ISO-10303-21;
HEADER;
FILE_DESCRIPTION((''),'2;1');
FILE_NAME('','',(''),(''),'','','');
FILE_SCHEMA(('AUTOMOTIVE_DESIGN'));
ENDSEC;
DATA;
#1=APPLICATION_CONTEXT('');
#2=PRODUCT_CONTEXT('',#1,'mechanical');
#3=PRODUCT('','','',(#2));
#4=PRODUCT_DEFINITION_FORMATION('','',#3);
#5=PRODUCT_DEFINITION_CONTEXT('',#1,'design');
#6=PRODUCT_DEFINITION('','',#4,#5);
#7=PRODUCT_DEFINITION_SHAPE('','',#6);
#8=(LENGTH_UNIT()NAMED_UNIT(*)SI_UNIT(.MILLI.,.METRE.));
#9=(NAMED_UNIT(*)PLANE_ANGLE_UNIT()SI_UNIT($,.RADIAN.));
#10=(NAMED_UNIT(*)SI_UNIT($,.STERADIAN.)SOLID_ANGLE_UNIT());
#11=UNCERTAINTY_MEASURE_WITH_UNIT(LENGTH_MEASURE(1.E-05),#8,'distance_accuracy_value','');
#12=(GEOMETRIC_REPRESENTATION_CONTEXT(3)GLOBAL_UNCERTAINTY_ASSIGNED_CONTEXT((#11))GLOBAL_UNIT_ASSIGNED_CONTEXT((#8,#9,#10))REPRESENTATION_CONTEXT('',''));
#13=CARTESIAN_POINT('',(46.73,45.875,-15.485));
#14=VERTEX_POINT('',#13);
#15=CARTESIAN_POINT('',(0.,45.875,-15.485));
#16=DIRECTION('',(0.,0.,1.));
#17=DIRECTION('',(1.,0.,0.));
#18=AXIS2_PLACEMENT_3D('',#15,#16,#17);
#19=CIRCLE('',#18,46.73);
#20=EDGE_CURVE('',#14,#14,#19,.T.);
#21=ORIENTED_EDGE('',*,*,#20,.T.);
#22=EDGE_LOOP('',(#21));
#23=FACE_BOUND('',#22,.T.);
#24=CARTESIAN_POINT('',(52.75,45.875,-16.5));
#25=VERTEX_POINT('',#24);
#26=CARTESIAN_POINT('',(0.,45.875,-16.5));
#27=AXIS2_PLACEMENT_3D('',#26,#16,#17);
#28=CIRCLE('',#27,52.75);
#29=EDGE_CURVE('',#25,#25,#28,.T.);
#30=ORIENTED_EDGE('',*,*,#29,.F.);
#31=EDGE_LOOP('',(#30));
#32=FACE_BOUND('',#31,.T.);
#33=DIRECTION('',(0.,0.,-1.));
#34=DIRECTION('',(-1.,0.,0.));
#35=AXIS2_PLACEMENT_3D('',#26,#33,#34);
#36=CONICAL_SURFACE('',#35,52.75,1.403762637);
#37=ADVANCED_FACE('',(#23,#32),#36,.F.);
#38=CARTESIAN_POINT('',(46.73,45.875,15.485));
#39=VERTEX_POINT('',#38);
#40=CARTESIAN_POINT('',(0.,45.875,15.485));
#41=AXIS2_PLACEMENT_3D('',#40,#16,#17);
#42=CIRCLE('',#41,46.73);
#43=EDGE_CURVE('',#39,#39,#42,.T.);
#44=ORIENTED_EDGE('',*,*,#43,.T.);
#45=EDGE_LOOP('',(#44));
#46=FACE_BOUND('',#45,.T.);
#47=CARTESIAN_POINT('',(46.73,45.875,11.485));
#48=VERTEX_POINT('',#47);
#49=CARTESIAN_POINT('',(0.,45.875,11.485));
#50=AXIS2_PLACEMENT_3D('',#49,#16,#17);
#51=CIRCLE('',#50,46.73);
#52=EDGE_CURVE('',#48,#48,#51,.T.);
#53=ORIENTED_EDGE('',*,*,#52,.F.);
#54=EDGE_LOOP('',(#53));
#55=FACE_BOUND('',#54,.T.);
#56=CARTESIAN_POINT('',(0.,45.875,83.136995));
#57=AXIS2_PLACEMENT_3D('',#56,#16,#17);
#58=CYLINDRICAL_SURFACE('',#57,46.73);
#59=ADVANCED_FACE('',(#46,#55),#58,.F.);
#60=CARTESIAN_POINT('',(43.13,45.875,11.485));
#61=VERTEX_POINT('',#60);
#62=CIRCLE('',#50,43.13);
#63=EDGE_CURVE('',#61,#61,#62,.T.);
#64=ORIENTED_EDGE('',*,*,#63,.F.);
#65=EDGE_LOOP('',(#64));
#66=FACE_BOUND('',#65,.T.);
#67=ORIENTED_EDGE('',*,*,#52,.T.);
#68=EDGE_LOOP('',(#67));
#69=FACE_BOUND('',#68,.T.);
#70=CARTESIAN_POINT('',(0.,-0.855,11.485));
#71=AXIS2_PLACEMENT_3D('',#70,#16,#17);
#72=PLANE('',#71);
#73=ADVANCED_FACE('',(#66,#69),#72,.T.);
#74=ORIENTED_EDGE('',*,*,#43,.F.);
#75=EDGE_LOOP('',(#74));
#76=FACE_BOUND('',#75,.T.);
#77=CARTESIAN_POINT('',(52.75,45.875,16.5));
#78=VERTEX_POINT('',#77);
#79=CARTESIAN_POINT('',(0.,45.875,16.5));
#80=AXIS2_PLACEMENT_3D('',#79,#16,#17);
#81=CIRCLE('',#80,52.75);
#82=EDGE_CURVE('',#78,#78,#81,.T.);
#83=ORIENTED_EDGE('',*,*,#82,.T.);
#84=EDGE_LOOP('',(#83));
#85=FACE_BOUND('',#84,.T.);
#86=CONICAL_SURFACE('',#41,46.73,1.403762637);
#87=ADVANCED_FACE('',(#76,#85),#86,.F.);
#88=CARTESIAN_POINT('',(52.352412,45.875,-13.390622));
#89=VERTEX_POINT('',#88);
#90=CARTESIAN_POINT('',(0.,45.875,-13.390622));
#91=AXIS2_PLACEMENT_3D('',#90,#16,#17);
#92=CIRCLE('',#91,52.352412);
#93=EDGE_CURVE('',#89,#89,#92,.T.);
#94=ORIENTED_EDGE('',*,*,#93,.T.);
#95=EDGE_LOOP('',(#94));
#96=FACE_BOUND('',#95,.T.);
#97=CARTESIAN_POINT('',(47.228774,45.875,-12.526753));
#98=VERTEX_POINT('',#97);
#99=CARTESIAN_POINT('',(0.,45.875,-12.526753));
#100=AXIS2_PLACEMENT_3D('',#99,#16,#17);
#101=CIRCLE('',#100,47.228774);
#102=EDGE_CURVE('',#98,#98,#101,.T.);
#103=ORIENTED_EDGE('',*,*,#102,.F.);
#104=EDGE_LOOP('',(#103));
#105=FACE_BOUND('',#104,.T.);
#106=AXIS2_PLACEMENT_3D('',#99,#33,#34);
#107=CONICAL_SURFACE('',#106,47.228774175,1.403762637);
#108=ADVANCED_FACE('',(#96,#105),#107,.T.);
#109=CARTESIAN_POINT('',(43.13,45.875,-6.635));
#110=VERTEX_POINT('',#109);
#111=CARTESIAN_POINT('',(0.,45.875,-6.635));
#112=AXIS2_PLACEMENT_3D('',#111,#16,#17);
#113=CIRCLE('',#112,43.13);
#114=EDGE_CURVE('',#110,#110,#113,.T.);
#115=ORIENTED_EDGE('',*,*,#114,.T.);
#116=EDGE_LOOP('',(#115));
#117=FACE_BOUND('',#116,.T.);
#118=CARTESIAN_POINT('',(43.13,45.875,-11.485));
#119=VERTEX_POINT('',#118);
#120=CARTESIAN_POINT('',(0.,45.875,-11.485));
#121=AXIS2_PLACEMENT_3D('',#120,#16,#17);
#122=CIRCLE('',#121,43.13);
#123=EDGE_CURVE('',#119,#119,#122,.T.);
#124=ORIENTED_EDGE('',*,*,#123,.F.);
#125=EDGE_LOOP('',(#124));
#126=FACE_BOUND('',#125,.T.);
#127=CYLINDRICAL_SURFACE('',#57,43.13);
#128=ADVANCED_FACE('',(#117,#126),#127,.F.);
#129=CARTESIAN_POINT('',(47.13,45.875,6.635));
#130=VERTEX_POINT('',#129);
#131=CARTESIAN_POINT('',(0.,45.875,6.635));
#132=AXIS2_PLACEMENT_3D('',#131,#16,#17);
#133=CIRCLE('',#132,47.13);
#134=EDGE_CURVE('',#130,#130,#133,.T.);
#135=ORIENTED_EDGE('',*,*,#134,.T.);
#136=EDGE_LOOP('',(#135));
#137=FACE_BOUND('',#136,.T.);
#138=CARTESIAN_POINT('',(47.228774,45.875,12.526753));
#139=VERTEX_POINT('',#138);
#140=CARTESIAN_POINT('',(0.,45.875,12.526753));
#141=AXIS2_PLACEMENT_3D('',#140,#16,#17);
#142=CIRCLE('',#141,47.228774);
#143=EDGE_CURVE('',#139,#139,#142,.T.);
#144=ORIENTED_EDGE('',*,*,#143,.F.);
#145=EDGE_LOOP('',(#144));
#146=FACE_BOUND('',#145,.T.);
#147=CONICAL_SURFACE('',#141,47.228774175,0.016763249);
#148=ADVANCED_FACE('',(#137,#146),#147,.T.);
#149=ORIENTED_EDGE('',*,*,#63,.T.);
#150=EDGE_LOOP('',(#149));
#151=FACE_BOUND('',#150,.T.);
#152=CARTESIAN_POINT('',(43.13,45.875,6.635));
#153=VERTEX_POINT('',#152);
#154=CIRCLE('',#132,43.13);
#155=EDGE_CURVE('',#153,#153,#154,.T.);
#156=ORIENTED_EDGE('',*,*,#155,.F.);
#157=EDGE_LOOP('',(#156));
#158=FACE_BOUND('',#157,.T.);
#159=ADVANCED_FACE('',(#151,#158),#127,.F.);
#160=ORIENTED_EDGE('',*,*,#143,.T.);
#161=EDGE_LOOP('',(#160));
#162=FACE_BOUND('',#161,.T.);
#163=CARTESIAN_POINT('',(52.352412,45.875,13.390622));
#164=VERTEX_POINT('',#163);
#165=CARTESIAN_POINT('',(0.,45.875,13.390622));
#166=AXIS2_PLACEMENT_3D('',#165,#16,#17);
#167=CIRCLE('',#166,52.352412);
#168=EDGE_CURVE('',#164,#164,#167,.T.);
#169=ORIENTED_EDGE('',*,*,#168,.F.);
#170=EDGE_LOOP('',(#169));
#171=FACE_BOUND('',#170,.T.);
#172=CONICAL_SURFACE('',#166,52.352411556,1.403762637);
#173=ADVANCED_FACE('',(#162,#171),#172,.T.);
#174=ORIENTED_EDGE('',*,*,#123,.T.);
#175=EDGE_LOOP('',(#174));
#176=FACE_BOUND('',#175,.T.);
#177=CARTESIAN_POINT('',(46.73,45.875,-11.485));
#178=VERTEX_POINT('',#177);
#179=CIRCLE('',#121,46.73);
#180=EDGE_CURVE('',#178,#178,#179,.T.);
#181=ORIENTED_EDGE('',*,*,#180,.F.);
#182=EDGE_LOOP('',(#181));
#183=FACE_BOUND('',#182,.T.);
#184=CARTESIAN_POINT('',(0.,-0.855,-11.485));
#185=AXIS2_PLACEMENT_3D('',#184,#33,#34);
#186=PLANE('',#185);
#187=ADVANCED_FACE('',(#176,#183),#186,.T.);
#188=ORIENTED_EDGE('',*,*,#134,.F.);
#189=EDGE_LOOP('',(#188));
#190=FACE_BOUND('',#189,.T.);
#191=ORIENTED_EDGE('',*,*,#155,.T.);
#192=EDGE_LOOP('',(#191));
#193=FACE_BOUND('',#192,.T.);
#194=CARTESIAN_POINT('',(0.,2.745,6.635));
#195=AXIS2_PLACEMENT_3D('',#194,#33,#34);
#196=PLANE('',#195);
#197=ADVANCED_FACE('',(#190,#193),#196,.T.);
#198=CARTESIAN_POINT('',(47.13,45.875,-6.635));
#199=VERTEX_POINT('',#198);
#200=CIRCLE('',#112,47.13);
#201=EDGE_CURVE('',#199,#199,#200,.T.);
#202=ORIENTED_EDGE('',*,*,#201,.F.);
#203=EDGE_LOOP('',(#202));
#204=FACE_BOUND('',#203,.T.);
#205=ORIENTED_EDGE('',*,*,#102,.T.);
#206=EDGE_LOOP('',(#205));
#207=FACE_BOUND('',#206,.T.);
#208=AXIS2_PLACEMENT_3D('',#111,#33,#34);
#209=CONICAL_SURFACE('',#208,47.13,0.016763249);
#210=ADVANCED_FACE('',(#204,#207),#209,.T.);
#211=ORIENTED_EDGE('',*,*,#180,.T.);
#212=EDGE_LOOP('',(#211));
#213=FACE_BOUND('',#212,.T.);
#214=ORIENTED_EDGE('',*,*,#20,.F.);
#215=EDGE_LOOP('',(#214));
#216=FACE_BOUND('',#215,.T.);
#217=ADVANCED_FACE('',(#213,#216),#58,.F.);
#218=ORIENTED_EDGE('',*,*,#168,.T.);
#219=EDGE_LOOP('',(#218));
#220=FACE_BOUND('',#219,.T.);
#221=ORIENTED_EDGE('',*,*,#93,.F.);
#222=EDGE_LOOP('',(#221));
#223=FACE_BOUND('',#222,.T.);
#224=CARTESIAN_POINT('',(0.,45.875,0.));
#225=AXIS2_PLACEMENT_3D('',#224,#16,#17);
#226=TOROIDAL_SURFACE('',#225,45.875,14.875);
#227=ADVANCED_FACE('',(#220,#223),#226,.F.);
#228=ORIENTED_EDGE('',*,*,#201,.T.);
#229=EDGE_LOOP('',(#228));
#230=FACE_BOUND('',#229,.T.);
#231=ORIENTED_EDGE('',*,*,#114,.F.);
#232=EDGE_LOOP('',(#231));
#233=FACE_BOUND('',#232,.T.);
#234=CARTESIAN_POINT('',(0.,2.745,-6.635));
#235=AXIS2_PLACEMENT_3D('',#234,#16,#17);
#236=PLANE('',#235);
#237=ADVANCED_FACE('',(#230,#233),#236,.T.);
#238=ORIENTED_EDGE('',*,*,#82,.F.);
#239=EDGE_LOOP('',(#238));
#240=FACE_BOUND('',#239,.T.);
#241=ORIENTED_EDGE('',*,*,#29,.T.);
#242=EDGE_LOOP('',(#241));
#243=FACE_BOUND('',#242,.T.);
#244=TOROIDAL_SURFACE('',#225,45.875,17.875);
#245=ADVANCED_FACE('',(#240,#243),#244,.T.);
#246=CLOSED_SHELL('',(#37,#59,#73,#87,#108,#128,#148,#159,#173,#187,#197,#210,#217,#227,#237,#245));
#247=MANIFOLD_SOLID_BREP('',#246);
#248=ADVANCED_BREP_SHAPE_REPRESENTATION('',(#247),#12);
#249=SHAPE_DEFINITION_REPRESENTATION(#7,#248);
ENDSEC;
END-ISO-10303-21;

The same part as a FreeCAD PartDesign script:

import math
import FreeCAD as App
import Part
import Sketcher

V = App.Vector

doc = App.newDocument("Part")
body = doc.addObject("PartDesign::Body", "Body")

# Sketch on YZ plane
sketch1 = doc.addObject("Sketcher::SketchObject", "Sketch")
body.addObject(sketch1)
sketch1.AttachmentSupport = (doc.YZ_Plane, [""])
sketch1.MapMode = "FlatFace"
sketch1.addGeometry([
    Part.LineSegment(V(-0.9, 15.5, 0), V(-6.9, 16.5, 0)),  # 0
    Part.ArcOfCircle(Part.Circle(V(0, 0, 0), V(0, 0, 1), 17.9), math.radians(113), math.radians(180)),  # 1
    Part.ArcOfCircle(Part.Circle(V(0, 0, 0), V(0, 0, 1), 17.9), math.radians(180), math.radians(247)),  # 2
    Part.LineSegment(V(-6.9, -16.5, 0), V(-0.9, -15.5, 0)),  # 3
    Part.LineSegment(V(-0.9, -15.5, 0), V(-0.9, -11.5, 0)),  # 4
    Part.LineSegment(V(-0.9, -11.5, 0), V(2.7, -11.5, 0)),  # 5
    Part.LineSegment(V(2.7, -11.5, 0), V(2.7, -6.6, 0)),  # 6
    Part.LineSegment(V(2.7, -6.6, 0), V(-1.3, -6.6, 0)),  # 7
    Part.LineSegment(V(-1.3, -6.6, 0), V(-1.4, -12.5, 0)),  # 8
    Part.LineSegment(V(-1.4, -12.5, 0), V(-6.5, -13.4, 0)),  # 9
    Part.ArcOfCircle(Part.Circle(V(0, 0, 0), V(0, 0, 1), 14.9), math.radians(-180), math.radians(-116)),  # 10
    Part.ArcOfCircle(Part.Circle(V(0, 0, 0), V(0, 0, 1), 14.9), math.radians(116), math.radians(180)),  # 11
    Part.LineSegment(V(-6.5, 13.4, 0), V(-1.4, 12.5, 0)),  # 12
    Part.LineSegment(V(-1.4, 12.5, 0), V(-1.3, 6.6, 0)),  # 13
    Part.LineSegment(V(-1.3, 6.6, 0), V(2.7, 6.6, 0)),  # 14
    Part.LineSegment(V(2.7, 6.6, 0), V(2.7, 11.5, 0)),  # 15
    Part.LineSegment(V(2.7, 11.5, 0), V(-0.9, 11.5, 0)),  # 16
    Part.LineSegment(V(-0.9, 11.5, 0), V(-0.9, 15.5, 0)),  # 17
], False)
sketch1.addGeometry(Part.LineSegment(V(45.9, 16.5, 0), V(45.9, -16.5, 0)), True)  # axis
sketch1.addConstraint([
    Sketcher.Constraint("Coincident", 0, 2, 1, 1),
    Sketcher.Constraint("Tangent", 1, 2, 2, 1),
    Sketcher.Constraint("Coincident", 2, 2, 3, 1),
    Sketcher.Constraint("Coincident", 3, 2, 4, 1),
    Sketcher.Constraint("Coincident", 4, 2, 5, 1),
    Sketcher.Constraint("Coincident", 5, 2, 6, 1),
    Sketcher.Constraint("Coincident", 6, 2, 7, 1),
    Sketcher.Constraint("Coincident", 7, 2, 8, 1),
    Sketcher.Constraint("Coincident", 8, 2, 9, 1),
    Sketcher.Constraint("Coincident", 9, 2, 10, 2),
    Sketcher.Constraint("Tangent", 10, 1, 11, 2),
    Sketcher.Constraint("Coincident", 11, 1, 12, 1),
    Sketcher.Constraint("Coincident", 12, 2, 13, 1),
    Sketcher.Constraint("Coincident", 13, 2, 14, 1),
    Sketcher.Constraint("Coincident", 14, 2, 15, 1),
    Sketcher.Constraint("Coincident", 15, 2, 16, 1),
    Sketcher.Constraint("Coincident", 16, 2, 17, 1),
    Sketcher.Constraint("Coincident", 17, 2, 0, 1),
    Sketcher.Constraint("Vertical", 4),
    Sketcher.Constraint("Horizontal", 5),
    Sketcher.Constraint("Vertical", 6),
    Sketcher.Constraint("Horizontal", 7),
    Sketcher.Constraint("Horizontal", 14),
    Sketcher.Constraint("Vertical", 15),
    Sketcher.Constraint("Horizontal", 16),
    Sketcher.Constraint("Vertical", 17),
    Sketcher.Constraint("Vertical", 18),
    Sketcher.Constraint("Coincident", 1, 3, -1, 1),
    Sketcher.Constraint("Coincident", 10, 3, -1, 1),
    Sketcher.Constraint("Equal", 1, 2),
    Sketcher.Constraint("Equal", 10, 11),
    Sketcher.Constraint("Symmetric", 8, 2, 12, 2, -1),
    Sketcher.Constraint("Symmetric", 7, 2, 13, 2, -1),
    Sketcher.Constraint("Symmetric", 5, 2, 15, 2, -1),
    Sketcher.Constraint("Symmetric", 3, 2, 17, 2, -1),
    Sketcher.Constraint("PointOnObject", 1, 2, -1),
    Sketcher.Constraint("PointOnObject", 10, 1, -1),
    Sketcher.Constraint("Parallel", 3, 9),
    Sketcher.Constraint("Parallel", 0, 12),
    Sketcher.Constraint("Horizontal", 0, 2, 18, 1),
    Sketcher.Constraint("Horizontal", 2, 2, 18, 2),
    Sketcher.Constraint("Vertical", 0, 2, 2, 2),
    Sketcher.Constraint("Equal", 14, 4),
    Sketcher.Constraint("DistanceX", 7, 2, 7, 1, 4.0),
    Sketcher.Constraint("DistanceY", 18, 2, 18, 1, 33.0),
    Sketcher.Constraint("DistanceX", 5, 1, 5, 2, 3.6),
    Sketcher.Constraint("Radius", 1, 17.875),
    Sketcher.Constraint("Radius", 10, 14.875),
    Sketcher.Constraint("DistanceY", 6, 1, 6, 2, 4.85),
    Sketcher.Constraint("DistanceX", 2, 2, 3, 2, 6.02),
    Sketcher.Constraint("DistanceX", 15, 2, 18, 1, 43.13),
    Sketcher.Constraint("DistanceY", 3, 2, -1, 1, 15.485),
    Sketcher.Constraint("Distance", 8, 5.892581),
    Sketcher.Constraint("DistanceX", 9, 2, -1, 1, 6.477412),
])
revolution = doc.addObject("PartDesign::Revolution", "Revolution")
body.addObject(revolution)
revolution.Profile = sketch1
revolution.ReferenceAxis = (sketch1, ["Axis0"])
revolution.Angle = 360

doc.recompute()
